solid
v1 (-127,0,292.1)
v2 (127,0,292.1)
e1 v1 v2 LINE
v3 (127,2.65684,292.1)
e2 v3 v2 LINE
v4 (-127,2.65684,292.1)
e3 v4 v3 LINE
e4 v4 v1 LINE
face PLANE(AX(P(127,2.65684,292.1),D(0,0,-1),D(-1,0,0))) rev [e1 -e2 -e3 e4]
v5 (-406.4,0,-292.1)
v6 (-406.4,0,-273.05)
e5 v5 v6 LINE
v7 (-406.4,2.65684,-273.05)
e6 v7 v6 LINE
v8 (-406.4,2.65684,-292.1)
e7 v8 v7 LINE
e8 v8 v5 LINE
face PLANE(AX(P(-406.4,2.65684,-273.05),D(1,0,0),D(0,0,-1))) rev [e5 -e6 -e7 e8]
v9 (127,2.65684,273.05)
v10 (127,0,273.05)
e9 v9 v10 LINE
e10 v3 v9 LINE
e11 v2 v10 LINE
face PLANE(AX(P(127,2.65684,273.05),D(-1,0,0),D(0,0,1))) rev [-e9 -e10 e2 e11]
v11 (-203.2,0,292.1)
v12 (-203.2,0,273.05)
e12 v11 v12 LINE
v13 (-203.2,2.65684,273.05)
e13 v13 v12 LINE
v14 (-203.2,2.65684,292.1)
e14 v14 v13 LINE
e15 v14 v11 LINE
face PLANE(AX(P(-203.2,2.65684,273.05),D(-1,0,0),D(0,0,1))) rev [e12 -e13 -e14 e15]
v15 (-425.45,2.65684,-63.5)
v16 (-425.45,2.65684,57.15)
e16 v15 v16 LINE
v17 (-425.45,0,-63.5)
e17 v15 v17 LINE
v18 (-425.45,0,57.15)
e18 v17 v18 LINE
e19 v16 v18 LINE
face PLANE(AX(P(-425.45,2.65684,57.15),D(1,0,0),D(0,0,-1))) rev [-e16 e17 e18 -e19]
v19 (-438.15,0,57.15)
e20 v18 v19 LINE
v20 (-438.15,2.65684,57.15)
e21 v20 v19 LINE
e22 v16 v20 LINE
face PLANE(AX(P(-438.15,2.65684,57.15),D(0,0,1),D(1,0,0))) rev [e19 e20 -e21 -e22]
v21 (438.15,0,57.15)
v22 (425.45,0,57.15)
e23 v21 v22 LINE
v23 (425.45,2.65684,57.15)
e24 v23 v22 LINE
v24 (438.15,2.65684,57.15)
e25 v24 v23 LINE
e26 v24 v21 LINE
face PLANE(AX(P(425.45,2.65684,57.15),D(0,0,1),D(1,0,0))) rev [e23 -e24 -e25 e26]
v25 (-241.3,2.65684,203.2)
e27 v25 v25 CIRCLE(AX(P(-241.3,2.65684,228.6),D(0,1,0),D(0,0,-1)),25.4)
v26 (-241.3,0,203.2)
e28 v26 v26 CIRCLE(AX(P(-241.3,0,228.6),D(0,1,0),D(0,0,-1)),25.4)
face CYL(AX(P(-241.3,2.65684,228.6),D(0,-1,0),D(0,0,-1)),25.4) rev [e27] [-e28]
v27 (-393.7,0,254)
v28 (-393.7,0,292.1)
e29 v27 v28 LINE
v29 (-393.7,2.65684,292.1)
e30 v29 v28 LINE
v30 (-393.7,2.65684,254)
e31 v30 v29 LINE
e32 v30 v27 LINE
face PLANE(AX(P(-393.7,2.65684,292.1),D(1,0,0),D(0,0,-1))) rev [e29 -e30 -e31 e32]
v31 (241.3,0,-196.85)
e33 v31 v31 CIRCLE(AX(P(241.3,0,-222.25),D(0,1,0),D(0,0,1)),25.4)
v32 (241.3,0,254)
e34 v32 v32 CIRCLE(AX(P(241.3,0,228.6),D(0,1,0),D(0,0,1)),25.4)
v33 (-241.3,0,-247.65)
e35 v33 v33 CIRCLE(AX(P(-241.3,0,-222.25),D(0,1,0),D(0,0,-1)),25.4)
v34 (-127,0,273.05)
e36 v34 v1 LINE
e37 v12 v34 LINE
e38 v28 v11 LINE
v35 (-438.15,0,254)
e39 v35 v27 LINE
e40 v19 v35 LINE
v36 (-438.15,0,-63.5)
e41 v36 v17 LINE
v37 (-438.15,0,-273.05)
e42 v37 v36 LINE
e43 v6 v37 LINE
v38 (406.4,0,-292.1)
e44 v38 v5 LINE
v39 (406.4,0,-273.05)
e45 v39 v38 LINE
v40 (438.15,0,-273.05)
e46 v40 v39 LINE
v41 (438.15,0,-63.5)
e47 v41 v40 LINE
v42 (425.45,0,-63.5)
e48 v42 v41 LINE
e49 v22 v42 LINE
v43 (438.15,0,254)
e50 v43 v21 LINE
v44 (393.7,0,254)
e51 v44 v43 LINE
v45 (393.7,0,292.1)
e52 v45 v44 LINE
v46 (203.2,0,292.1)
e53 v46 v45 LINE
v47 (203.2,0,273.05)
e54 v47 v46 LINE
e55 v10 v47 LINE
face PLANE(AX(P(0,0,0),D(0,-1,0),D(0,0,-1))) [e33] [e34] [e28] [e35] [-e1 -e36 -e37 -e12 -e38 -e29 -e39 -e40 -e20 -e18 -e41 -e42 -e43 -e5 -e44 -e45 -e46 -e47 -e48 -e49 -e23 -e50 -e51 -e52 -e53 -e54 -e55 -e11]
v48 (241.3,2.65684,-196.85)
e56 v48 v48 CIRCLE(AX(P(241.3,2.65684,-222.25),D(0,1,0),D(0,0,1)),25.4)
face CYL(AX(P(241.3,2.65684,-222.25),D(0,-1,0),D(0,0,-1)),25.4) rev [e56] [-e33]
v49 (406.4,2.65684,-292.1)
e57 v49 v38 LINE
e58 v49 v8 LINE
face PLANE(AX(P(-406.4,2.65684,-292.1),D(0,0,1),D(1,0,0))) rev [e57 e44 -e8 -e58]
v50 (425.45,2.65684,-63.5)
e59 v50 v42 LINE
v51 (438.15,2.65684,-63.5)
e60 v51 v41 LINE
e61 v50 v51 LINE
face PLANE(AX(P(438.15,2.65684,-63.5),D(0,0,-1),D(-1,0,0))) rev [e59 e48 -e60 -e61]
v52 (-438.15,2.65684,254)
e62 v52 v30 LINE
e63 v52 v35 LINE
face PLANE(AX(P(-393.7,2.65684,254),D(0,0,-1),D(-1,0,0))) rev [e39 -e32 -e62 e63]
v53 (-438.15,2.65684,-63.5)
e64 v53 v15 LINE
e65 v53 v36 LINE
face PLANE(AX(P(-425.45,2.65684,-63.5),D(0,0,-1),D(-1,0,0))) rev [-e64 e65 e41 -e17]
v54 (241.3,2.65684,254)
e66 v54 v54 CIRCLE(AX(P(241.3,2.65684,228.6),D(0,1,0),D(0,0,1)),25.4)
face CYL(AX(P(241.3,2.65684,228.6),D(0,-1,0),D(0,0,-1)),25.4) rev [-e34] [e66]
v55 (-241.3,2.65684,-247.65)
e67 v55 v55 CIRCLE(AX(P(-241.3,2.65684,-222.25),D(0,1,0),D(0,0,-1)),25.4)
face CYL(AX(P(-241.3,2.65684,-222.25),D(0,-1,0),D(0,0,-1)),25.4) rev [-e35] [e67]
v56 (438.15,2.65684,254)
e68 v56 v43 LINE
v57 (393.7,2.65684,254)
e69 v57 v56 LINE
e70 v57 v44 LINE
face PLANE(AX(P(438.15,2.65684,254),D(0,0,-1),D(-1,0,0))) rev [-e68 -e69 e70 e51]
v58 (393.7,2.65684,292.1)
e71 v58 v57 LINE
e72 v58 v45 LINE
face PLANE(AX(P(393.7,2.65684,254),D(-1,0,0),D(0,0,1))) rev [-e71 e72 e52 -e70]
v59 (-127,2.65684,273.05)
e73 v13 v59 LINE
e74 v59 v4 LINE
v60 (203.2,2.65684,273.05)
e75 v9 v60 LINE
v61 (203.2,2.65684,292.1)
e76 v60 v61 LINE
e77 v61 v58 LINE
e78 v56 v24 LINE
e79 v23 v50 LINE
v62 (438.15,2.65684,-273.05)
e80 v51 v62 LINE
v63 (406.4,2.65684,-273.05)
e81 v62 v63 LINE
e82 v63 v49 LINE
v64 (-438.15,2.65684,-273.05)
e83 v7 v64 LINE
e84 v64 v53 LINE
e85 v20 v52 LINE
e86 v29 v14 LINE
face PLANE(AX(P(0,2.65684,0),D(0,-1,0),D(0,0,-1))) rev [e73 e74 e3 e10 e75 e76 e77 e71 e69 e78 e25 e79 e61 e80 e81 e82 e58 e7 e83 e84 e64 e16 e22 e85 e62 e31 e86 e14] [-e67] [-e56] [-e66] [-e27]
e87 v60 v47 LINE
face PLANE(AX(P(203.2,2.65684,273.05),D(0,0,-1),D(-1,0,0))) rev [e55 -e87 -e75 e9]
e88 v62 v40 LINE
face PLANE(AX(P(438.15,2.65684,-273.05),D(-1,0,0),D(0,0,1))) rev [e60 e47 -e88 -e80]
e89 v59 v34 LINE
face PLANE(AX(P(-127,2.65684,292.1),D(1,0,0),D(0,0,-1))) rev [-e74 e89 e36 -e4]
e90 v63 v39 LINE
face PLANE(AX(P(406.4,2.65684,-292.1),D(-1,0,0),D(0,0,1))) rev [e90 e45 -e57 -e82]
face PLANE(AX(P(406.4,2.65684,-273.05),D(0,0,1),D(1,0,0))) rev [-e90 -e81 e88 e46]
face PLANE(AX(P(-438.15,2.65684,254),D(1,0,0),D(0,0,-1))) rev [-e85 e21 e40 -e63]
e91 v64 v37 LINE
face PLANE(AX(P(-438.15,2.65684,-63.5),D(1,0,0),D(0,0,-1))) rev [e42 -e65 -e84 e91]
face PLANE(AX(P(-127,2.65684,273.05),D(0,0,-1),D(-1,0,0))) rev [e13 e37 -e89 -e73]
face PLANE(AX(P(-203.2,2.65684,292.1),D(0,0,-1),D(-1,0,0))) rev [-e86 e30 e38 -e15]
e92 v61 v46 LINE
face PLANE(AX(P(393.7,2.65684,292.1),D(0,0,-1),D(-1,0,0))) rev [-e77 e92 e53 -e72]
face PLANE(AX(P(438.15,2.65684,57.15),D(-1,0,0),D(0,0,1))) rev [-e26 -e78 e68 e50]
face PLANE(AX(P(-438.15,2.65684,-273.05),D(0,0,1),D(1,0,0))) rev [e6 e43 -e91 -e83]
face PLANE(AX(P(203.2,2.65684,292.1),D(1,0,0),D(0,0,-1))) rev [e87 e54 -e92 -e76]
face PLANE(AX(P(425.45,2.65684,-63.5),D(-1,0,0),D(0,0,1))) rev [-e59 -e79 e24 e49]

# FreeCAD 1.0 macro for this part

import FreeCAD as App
import Part
import Sketcher
Q = App.Units.Quantity


def add_polygon(sketch, points):
    """Adds a closed chain of lines whose ends are joined by coincident constraints."""
    first, n = sketch.GeometryCount, len(points)
    for a, b in zip(points, points[1:] + points[:1]):
        sketch.addGeometry(Part.LineSegment(App.Vector(*a, 0), App.Vector(*b, 0)), False)
    for i in range(n):
        sketch.addConstraint(Sketcher.Constraint("Coincident", first + i, 2, first + (i + 1) % n, 1))

doc = App.newDocument("Part")
body = doc.addObject("PartDesign::Body", "Body")

# Sketch on XZ plane
sketch1 = doc.addObject("Sketcher::SketchObject", "Sketch")
body.addObject(sketch1)
sketch1.AttachmentSupport = (doc.XZ_Plane, [""])
sketch1.MapMode = "FlatFace"
add_polygon(sketch1, [(-406.4, -273.05), (-438.15, -273.05), (-438.15, -63.5), (-425.45, -63.5), (-425.45, 57.15), (-438.15, 57.15), (-438.15, 254), (-393.7, 254), (-393.7, 292.1), (-203.2, 292.1), (-203.2, 273.05), (-127, 273.05), (-127, 292.1), (127, 292.1), (127, 273.05), (203.2, 273.05), (203.2, 292.1), (393.7, 292.1), (393.7, 254), (438.15, 254), (438.15, 57.15), (425.45, 57.15), (425.45, -63.5), (438.15, -63.5), (438.15, -273.05), (406.4, -273.05), (406.4, -292.1), (-406.4, -292.1)])  # lines 0-27
sketch1.addGeometry(Part.Circle(App.Vector(241.3, 228.6, 0), App.Vector(0, 0, 1), 25.4), False)  # 28
sketch1.addGeometry(Part.Circle(App.Vector(-241.3, 228.6, 0), App.Vector(0, 0, 1), 25.4), False)  # 29
sketch1.addGeometry(Part.Circle(App.Vector(241.3, -222.25, 0), App.Vector(0, 0, 1), 25.4), False)  # 30
sketch1.addGeometry(Part.Circle(App.Vector(-241.3, -222.25, 0), App.Vector(0, 0, 1), 25.4), False)  # 31
sketch1.addConstraint([
    Sketcher.Constraint("Horizontal", 0),
    Sketcher.Constraint("Vertical", 1),
    Sketcher.Constraint("Horizontal", 2),
    Sketcher.Constraint("Vertical", 3),
    Sketcher.Constraint("Horizontal", 4),
    Sketcher.Constraint("Vertical", 5),
    Sketcher.Constraint("Horizontal", 6),
    Sketcher.Constraint("Vertical", 7),
    Sketcher.Constraint("Horizontal", 8),
    Sketcher.Constraint("Vertical", 9),
    Sketcher.Constraint("Horizontal", 10),
    Sketcher.Constraint("Vertical", 11),
    Sketcher.Constraint("Horizontal", 12),
    Sketcher.Constraint("Vertical", 13),
    Sketcher.Constraint("Horizontal", 14),
    Sketcher.Constraint("Vertical", 15),
    Sketcher.Constraint("Horizontal", 16),
    Sketcher.Constraint("Vertical", 17),
    Sketcher.Constraint("Horizontal", 18),
    Sketcher.Constraint("Vertical", 19),
    Sketcher.Constraint("Horizontal", 20),
    Sketcher.Constraint("Vertical", 21),
    Sketcher.Constraint("Horizontal", 22),
    Sketcher.Constraint("Vertical", 23),
    Sketcher.Constraint("Horizontal", 24),
    Sketcher.Constraint("Vertical", 25),
    Sketcher.Constraint("Horizontal", 26),
    Sketcher.Constraint("Vertical", 27),
    Sketcher.Constraint("Equal", 28, 29),
    Sketcher.Constraint("Equal", 29, 30),
    Sketcher.Constraint("Equal", 30, 31),
    Sketcher.Constraint("Symmetric", 28, 3, 29, 3, -2),
    Sketcher.Constraint("Symmetric", 30, 3, 31, 3, -2),
    Sketcher.Constraint("Symmetric", 10, 2, 13, 2, -2),
    Sketcher.Constraint("Symmetric", 8, 2, 15, 2, -2),
    Sketcher.Constraint("Symmetric", 6, 2, 17, 2, -2),
    Sketcher.Constraint("Symmetric", 4, 2, 19, 2, -2),
    Sketcher.Constraint("Symmetric", 2, 2, 21, 2, -2),
    Sketcher.Constraint("Symmetric", 0, 2, 23, 2, -2),
    Sketcher.Constraint("Horizontal", 8, 2, 11, 2),
    Sketcher.Constraint("Vertical", 28, 3, 30, 3),
    Sketcher.Constraint("Vertical", 1, 2, 4, 2),
    Sketcher.Constraint("Equal", 0, 24),
    Sketcher.Constraint("Equal", 15, 25),
    Sketcher.Constraint("Diameter", 28, Q("2 in")),
    Sketcher.Constraint("DistanceX", 10, 1, 10, 2, Q("3 in")),
    Sketcher.Constraint("DistanceX", 12, 1, 12, 2, Q("10 in")),
    Sketcher.Constraint("DistanceX", 26, 2, 26, 1, Q("32 in")),
    Sketcher.Constraint("DistanceX", 2, 1, 2, 2, Q("0.5 in")),
    Sketcher.Constraint("DistanceX", 8, 1, 8, 2, Q("7.5 in")),
    Sketcher.Constraint("DistanceY", 7, 1, 7, 2, Q("1.5 in")),
    Sketcher.Constraint("DistanceY", -1, 1, 28, 3, Q("9 in")),
    Sketcher.Constraint("DistanceY", -1, 1, 5, 2, Q("10 in")),
    Sketcher.Constraint("DistanceX", 29, 3, 28, 3, Q("19 in")),
    Sketcher.Constraint("DistanceY", 0, 2, 31, 3, Q("2 in")),
    Sketcher.Constraint("DistanceY", 0, 2, 3, 2, Q("13 in")),
    Sketcher.Constraint("DistanceY", 25, 2, 21, 2, Q("9 in")),
    Sketcher.Constraint("DistanceX", 0, 2, 0, 1, Q("1.25 in")),
    Sketcher.Constraint("DistanceY", 1, 1, 1, 2, Q("8.25 in")),
    Sketcher.Constraint("DistanceY", 5, 1, 5, 2, Q("7.75 in")),
])
pad1 = doc.addObject("PartDesign::Pad", "Pad")
body.addObject(pad1)
pad1.Profile = sketch1
pad1.Length = Q("0.1046 in")
pad1.Reversed = True

doc.recompute()
